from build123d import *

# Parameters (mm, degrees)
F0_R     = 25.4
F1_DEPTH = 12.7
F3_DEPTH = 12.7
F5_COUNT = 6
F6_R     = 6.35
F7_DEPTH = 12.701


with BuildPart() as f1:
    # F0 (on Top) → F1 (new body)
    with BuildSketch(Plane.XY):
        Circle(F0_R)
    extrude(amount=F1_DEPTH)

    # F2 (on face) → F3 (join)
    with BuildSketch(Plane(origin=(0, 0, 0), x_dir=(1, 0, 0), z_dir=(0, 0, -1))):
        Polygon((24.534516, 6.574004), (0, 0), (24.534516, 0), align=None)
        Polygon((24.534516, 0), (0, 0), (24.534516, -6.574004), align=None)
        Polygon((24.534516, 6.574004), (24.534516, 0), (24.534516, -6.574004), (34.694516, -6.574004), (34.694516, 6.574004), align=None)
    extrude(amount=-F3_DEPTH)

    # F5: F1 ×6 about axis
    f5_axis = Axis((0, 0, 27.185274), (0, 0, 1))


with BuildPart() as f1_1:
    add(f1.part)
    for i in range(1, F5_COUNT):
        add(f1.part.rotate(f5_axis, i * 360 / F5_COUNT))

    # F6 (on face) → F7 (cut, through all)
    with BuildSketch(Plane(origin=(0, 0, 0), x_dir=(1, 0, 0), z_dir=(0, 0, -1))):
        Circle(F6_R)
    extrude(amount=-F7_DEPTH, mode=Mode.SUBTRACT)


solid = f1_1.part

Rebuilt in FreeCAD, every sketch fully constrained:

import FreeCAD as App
import Part
import Sketcher
from FreeCAD import Vector
Q = App.Units.Quantity

doc = App.newDocument("Part")
params = doc.addObject("Spreadsheet::Sheet", "Params")
for row, (alias, value) in enumerate([
    ("sketch1_diameter", "2 in"),
    ("pad1_length", "0.5 in"),
    ("sketch2_length", "1 in"),
    ("sketch2_width", "0.4 in"),
    ("pad2_length", "0.5 in"),
    ("sketch3_diameter", "0.5 in"),
], start=1):
    params.set(f"A{row}", alias)
    params.set(f"B{row}", "=" + value)
    params.setAlias(f"B{row}", alias)

body = doc.addObject("PartDesign::Body", "Body")

# Sketch on XY plane
sketch1 = body.newObject("Sketcher::SketchObject", "Sketch")
sketch1.AttachmentSupport = (doc.getObject("XY_Plane"), [""])
sketch1.MapMode = "FlatFace"
sketch1.addGeometry(Part.Circle(Vector(0, 0, 0), Vector(0, 0, 1), 25), False)
sketch1.addConstraint([
    Sketcher.Constraint("Coincident", 0, 3, -1, 1),
    Sketcher.Constraint("Diameter", 0, Q("2 in")),
])
sketch1.setExpression("Constraints[1]", "Params.sketch1_diameter")
pad1 = body.newObject("PartDesign::Pad", "Pad")
pad1.Profile = sketch1
pad1.setExpression("Length", "Params.pad1_length")

# Sketch on XY plane
sketch2 = body.newObject("Sketcher::SketchObject", "Sketch001")
sketch2.AttachmentSupport = (doc.getObject("XY_Plane"), [""])
sketch2.MapMode = "FlatFace"
sketch2.addGeometry([
    Part.LineSegment(Vector(25, -7, 0), Vector(0, 0, 0)),  # 0
    Part.LineSegment(Vector(0, 0, 0), Vector(25, 7, 0)),  # 1
    Part.LineSegment(Vector(25, 7, 0), Vector(35, 7, 0)),  # 2
    Part.LineSegment(Vector(35, 7, 0), Vector(35, -7, 0)),  # 3
    Part.LineSegment(Vector(35, -7, 0), Vector(25, -7, 0)),  # 4
], False)
sketch2.addConstraint([
    Sketcher.Constraint("Coincident", 0, 2, 1, 1),
    Sketcher.Constraint("Coincident", 1, 2, 2, 1),
    Sketcher.Constraint("Coincident", 2, 2, 3, 1),
    Sketcher.Constraint("Coincident", 3, 2, 4, 1),
    Sketcher.Constraint("Coincident", 4, 2, 0, 1),
    Sketcher.Constraint("Horizontal", 2),
    Sketcher.Constraint("Vertical", 3),
    Sketcher.Constraint("Horizontal", 4),
    Sketcher.Constraint("Coincident", 0, 2, -1, 1),
    Sketcher.Constraint("Symmetric", 1, 2, 4, 2, -1),
    Sketcher.Constraint("Distance", 0, Q("1 in")),
    Sketcher.Constraint("DistanceX", 2, 1, 2, 2, Q("0.4 in")),
    Sketcher.Constraint("Angle", 0, Q("164.999999 deg")),
])
sketch2.setExpression("Constraints[10]", "Params.sketch2_length")
sketch2.setExpression("Constraints[11]", "Params.sketch2_width")
pad2 = body.newObject("PartDesign::Pad", "Pad001")
pad2.Profile = sketch2
pad2.setExpression("Length", "Params.pad2_length")
body2 = doc.addObject("PartDesign::Body", "Body001")
doc.recompute()

body2.BaseFeature = body
doc.recompute()

body3 = doc.addObject("PartDesign::Body", "Body002")
body3.BaseFeature = body
body3.Placement = App.Placement(Vector(0, 0, 0), App.Rotation(Vector(0, 0, 1), 60))
boolean = body2.newObject("PartDesign::Boolean", "Boolean")
boolean.Type = "Fuse"
boolean.addObjects([body3])
doc.recompute()

body4 = doc.addObject("PartDesign::Body", "Body003")
body4.BaseFeature = body
body4.Placement = App.Placement(Vector(0, 0, 0), App.Rotation(Vector(0, 0, 1), 120))
boolean2 = body2.newObject("PartDesign::Boolean", "Boolean001")
boolean2.Type = "Fuse"
boolean2.addObjects([body4])
doc.recompute()

body5 = doc.addObject("PartDesign::Body", "Body004")
body5.BaseFeature = body
body5.Placement = App.Placement(Vector(0, 0, 0), App.Rotation(Vector(0, 0, 1), 180))
boolean3 = body2.newObject("PartDesign::Boolean", "Boolean002")
boolean3.Type = "Fuse"
boolean3.addObjects([body5])
doc.recompute()

body6 = doc.addObject("PartDesign::Body", "Body005")
body6.BaseFeature = body
body6.Placement = App.Placement(Vector(0, 0, 0), App.Rotation(Vector(0, 0, 1), 240))
boolean4 = body2.newObject("PartDesign::Boolean", "Boolean003")
boolean4.Type = "Fuse"
boolean4.addObjects([body6])
doc.recompute()

body.Placement = App.Placement(Vector(0, 0, 0), App.Rotation(Vector(0, 0, 1), 300))
boolean5 = body2.newObject("PartDesign::Boolean", "Boolean004")
boolean5.Type = "Fuse"
boolean5.addObjects([body])

# Sketch on XY plane
sketch3 = body2.newObject("Sketcher::SketchObject", "Sketch002")
sketch3.AttachmentSupport = (doc.getObject("XY_Plane001"), [""])
sketch3.MapMode = "FlatFace"
sketch3.addGeometry(Part.Circle(Vector(0, 0, 0), Vector(0, 0, 1), 6), False)
sketch3.addConstraint([
    Sketcher.Constraint("Coincident", 0, 3, -1, 1),
    Sketcher.Constraint("Diameter", 0, Q("0.5 in")),
])
sketch3.setExpression("Constraints[1]", "Params.sketch3_diameter")
pocket1 = body2.newObject("PartDesign::Pocket", "Pocket")
pocket1.Profile = sketch3
pocket1.Type = "ThroughAll"
pocket1.Reversed = True

doc.recompute()
